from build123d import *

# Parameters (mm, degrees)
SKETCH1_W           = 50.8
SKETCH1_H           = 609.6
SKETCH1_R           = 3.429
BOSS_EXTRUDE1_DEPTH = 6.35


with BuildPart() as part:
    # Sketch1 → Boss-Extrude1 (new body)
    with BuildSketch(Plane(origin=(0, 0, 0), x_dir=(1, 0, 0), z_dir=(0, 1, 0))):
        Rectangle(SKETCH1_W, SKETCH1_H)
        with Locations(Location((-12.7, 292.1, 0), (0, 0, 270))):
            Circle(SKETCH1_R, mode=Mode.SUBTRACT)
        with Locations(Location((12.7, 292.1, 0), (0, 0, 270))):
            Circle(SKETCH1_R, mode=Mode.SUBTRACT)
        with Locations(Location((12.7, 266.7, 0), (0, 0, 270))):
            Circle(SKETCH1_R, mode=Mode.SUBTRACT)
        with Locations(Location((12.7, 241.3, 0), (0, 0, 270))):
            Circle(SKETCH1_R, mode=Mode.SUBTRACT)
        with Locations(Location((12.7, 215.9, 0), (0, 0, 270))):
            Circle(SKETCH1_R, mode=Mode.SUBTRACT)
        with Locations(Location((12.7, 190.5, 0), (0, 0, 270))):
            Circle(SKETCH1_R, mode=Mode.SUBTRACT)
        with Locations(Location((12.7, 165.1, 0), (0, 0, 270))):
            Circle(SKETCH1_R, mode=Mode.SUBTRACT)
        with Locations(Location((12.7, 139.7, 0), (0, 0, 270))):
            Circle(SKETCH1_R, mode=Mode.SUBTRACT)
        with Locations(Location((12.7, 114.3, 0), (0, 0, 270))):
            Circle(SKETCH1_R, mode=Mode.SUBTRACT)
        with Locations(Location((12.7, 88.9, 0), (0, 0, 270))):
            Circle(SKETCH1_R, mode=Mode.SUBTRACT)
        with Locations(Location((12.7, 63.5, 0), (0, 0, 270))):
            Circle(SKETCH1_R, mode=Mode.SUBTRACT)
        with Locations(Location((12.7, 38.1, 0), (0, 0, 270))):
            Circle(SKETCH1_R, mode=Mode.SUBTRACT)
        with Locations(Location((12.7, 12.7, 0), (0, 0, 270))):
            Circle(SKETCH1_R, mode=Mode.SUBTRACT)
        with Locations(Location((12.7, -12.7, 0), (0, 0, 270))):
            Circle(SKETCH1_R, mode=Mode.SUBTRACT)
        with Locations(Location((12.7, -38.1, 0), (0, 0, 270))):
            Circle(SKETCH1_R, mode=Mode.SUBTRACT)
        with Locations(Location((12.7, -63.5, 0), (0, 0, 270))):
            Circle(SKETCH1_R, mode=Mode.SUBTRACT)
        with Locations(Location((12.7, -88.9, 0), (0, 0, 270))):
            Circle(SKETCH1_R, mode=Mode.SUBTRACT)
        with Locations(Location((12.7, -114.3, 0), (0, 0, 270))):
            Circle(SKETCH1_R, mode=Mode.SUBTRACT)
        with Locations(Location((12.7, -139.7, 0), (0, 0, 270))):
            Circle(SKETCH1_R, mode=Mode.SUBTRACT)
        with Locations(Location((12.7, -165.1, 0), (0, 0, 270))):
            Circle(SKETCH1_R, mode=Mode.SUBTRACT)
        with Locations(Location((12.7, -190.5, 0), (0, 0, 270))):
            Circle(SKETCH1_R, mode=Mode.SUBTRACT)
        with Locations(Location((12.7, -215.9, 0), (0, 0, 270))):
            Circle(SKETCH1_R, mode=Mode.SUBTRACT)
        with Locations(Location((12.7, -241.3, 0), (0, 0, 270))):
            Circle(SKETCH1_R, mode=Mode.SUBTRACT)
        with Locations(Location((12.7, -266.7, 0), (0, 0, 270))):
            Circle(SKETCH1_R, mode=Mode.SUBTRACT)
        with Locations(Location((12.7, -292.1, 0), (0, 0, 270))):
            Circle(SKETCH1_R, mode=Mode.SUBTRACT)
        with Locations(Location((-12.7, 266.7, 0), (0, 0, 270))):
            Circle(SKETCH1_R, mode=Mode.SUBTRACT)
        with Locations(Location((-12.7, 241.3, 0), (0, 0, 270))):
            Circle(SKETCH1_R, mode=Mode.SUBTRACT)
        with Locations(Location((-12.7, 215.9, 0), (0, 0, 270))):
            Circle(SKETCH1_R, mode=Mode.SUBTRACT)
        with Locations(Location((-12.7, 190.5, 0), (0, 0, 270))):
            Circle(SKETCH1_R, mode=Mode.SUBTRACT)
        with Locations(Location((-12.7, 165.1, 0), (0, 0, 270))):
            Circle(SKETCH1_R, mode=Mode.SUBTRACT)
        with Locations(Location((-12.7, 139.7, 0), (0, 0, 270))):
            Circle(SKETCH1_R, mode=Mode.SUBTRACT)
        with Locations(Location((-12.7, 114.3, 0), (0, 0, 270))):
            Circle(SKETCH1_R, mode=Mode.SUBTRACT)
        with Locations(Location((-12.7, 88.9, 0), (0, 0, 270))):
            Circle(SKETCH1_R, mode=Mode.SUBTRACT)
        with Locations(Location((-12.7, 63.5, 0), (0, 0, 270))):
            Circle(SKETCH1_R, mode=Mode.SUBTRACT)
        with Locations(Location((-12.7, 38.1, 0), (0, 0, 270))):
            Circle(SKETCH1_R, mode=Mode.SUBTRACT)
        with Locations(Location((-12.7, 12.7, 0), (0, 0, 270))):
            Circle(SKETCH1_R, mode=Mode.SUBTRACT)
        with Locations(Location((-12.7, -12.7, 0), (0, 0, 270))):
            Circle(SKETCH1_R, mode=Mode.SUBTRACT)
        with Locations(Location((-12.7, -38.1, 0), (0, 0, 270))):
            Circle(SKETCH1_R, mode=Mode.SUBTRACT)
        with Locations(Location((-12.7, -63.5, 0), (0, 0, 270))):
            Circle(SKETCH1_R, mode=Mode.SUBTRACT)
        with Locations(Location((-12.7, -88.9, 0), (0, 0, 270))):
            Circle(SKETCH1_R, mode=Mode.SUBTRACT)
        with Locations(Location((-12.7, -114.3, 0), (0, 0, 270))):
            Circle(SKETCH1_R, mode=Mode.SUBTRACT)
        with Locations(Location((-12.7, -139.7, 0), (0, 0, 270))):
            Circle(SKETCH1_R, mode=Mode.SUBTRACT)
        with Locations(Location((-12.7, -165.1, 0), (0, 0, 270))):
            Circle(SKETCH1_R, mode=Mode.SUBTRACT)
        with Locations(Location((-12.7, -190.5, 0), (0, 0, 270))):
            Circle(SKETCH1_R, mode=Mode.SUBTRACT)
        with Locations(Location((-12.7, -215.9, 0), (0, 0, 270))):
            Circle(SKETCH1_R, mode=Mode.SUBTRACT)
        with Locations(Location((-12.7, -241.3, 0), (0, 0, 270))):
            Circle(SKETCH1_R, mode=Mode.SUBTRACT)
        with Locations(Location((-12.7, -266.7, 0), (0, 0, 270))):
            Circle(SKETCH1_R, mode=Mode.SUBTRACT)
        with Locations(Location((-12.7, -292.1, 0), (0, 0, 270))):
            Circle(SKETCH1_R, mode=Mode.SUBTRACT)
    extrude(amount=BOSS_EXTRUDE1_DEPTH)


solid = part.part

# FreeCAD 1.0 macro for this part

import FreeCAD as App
import Part
import Sketcher
from FreeCAD import Vector
Q = App.Units.Quantity

doc = App.newDocument("Part")
params = doc.addObject("Spreadsheet::Sheet", "Params")
for row, (alias, value) in enumerate([
    ("sketch1_diameter", "0.27 in"),
    ("sketch1_width", "2 in"),
    ("sketch1_height", "24 in"),
    ("pad1_length", "0.25 in"),
], start=1):
    params.set(f"A{row}", alias)
    params.set(f"B{row}", "=" + value)
    params.setAlias(f"B{row}", alias)

body = doc.addObject("PartDesign::Body", "Body")

# Sketch on XZ plane
sketch1 = body.newObject("Sketcher::SketchObject", "Sketch")
sketch1.AttachmentSupport = (doc.getObject("XZ_Plane"), [""])
sketch1.MapMode = "FlatFace"
sketch1.addGeometry([
    Part.LineSegment(Vector(-25.4, -304.8, 0), Vector(-25.4, 304.8, 0)),  # 0
    Part.LineSegment(Vector(-25.4, 304.8, 0), Vector(25.4, 304.8, 0)),  # 1
    Part.LineSegment(Vector(25.4, 304.8, 0), Vector(25.4, -304.8, 0)),  # 2
    Part.LineSegment(Vector(25.4, -304.8, 0), Vector(-25.4, -304.8, 0)),  # 3
    Part.Circle(Vector(-12.7, 292.1, 0), Vector(0, 0, 1), 3.429),  # 4
    Part.Circle(Vector(-12.7, 266.7, 0), Vector(0, 0, 1), 3.429),  # 5
    Part.Circle(Vector(-12.7, 241.3, 0), Vector(0, 0, 1), 3.429),  # 6
    Part.Circle(Vector(-12.7, 215.9, 0), Vector(0, 0, 1), 3.429),  # 7
    Part.Circle(Vector(-12.7, 190.5, 0), Vector(0, 0, 1), 3.429),  # 8
    Part.Circle(Vector(-12.7, 165.1, 0), Vector(0, 0, 1), 3.429),  # 9
    Part.Circle(Vector(-12.7, 139.7, 0), Vector(0, 0, 1), 3.429),  # 10
    Part.Circle(Vector(-12.7, 114.3, 0), Vector(0, 0, 1), 3.429),  # 11
    Part.Circle(Vector(-12.7, 88.9, 0), Vector(0, 0, 1), 3.429),  # 12
    Part.Circle(Vector(-12.7, 63.5, 0), Vector(0, 0, 1), 3.429),  # 13
    Part.Circle(Vector(-12.7, 38.1, 0), Vector(0, 0, 1), 3.429),  # 14
    Part.Circle(Vector(-12.7, 12.7, 0), Vector(0, 0, 1), 3.429),  # 15
    Part.Circle(Vector(12.7, 292.1, 0), Vector(0, 0, 1), 3.429),  # 16
    Part.Circle(Vector(12.7, 266.7, 0), Vector(0, 0, 1), 3.429),  # 17
    Part.Circle(Vector(12.7, 241.3, 0), Vector(0, 0, 1), 3.429),  # 18
    Part.Circle(Vector(12.7, 215.9, 0), Vector(0, 0, 1), 3.429),  # 19
    Part.Circle(Vector(12.7, 190.5, 0), Vector(0, 0, 1), 3.429),  # 20
    Part.Circle(Vector(12.7, 165.1, 0), Vector(0, 0, 1), 3.429),  # 21
    Part.Circle(Vector(12.7, 139.7, 0), Vector(0, 0, 1), 3.429),  # 22
    Part.Circle(Vector(12.7, 114.3, 0), Vector(0, 0, 1), 3.429),  # 23
    Part.Circle(Vector(12.7, 88.9, 0), Vector(0, 0, 1), 3.429),  # 24
    Part.Circle(Vector(12.7, 63.5, 0), Vector(0, 0, 1), 3.429),  # 25
    Part.Circle(Vector(12.7, 38.1, 0), Vector(0, 0, 1), 3.429),  # 26
    Part.Circle(Vector(12.7, 12.7, 0), Vector(0, 0, 1), 3.429),  # 27
    Part.Circle(Vector(-12.7, -12.7, 0), Vector(0, 0, 1), 3.429),  # 28
    Part.Circle(Vector(-12.7, -38.1, 0), Vector(0, 0, 1), 3.429),  # 29
    Part.Circle(Vector(-12.7, -63.5, 0), Vector(0, 0, 1), 3.429),  # 30
    Part.Circle(Vector(-12.7, -88.9, 0), Vector(0, 0, 1), 3.429),  # 31
    Part.Circle(Vector(-12.7, -114.3, 0), Vector(0, 0, 1), 3.429),  # 32
    Part.Circle(Vector(-12.7, -139.7, 0), Vector(0, 0, 1), 3.429),  # 33
    Part.Circle(Vector(-12.7, -165.1, 0), Vector(0, 0, 1), 3.429),  # 34
    Part.Circle(Vector(-12.7, -190.5, 0), Vector(0, 0, 1), 3.429),  # 35
    Part.Circle(Vector(-12.7, -215.9, 0), Vector(0, 0, 1), 3.429),  # 36
    Part.Circle(Vector(-12.7, -241.3, 0), Vector(0, 0, 1), 3.429),  # 37
    Part.Circle(Vector(-12.7, -266.7, 0), Vector(0, 0, 1), 3.429),  # 38
    Part.Circle(Vector(-12.7, -292.1, 0), Vector(0, 0, 1), 3.429),  # 39
    Part.Circle(Vector(12.7, -12.7, 0), Vector(0, 0, 1), 3.429),  # 40
    Part.Circle(Vector(12.7, -38.1, 0), Vector(0, 0, 1), 3.429),  # 41
    Part.Circle(Vector(12.7, -63.5, 0), Vector(0, 0, 1), 3.429),  # 42
    Part.Circle(Vector(12.7, -88.9, 0), Vector(0, 0, 1), 3.429),  # 43
    Part.Circle(Vector(12.7, -114.3, 0), Vector(0, 0, 1), 3.429),  # 44
    Part.Circle(Vector(12.7, -139.7, 0), Vector(0, 0, 1), 3.429),  # 45
    Part.Circle(Vector(12.7, -165.1, 0), Vector(0, 0, 1), 3.429),  # 46
    Part.Circle(Vector(12.7, -190.5, 0), Vector(0, 0, 1), 3.429),  # 47
    Part.Circle(Vector(12.7, -215.9, 0), Vector(0, 0, 1), 3.429),  # 48
    Part.Circle(Vector(12.7, -241.3, 0), Vector(0, 0, 1), 3.429),  # 49
    Part.Circle(Vector(12.7, -266.7, 0), Vector(0, 0, 1), 3.429),  # 50
    Part.Circle(Vector(12.7, -292.1, 0), Vector(0, 0, 1), 3.429),  # 51
], False)
sketch1.addConstraint([
    Sketcher.Constraint("Coincident", 0, 2, 1, 1),
    Sketcher.Constraint("Coincident", 1, 2, 2, 1),
    Sketcher.Constraint("Coincident", 2, 2, 3, 1),
    Sketcher.Constraint("Coincident", 3, 2, 0, 1),
    Sketcher.Constraint("Vertical", 0),
    Sketcher.Constraint("Horizontal", 1),
    Sketcher.Constraint("Vertical", 2),
    Sketcher.Constraint("Horizontal", 3),
    Sketcher.Constraint("Equal", 4, 5),
    Sketcher.Constraint("Equal", 5, 6),
    Sketcher.Constraint("Equal", 6, 7),
    Sketcher.Constraint("Equal", 7, 8),
    Sketcher.Constraint("Equal", 8, 9),
    Sketcher.Constraint("Equal", 9, 10),
    Sketcher.Constraint("Equal", 10, 11),
    Sketcher.Constraint("Equal", 11, 12),
    Sketcher.Constraint("Equal", 12, 13),
    Sketcher.Constraint("Equal", 13, 14),
    Sketcher.Constraint("Equal", 14, 15),
    Sketcher.Constraint("Equal", 15, 16),
    Sketcher.Constraint("Equal", 16, 17),
    Sketcher.Constraint("Equal", 17, 18),
    Sketcher.Constraint("Equal", 18, 19),
    Sketcher.Constraint("Equal", 19, 20),
    Sketcher.Constraint("Equal", 20, 21),
    Sketcher.Constraint("Equal", 21, 22),
    Sketcher.Constraint("Equal", 22, 23),
    Sketcher.Constraint("Equal", 23, 24),
    Sketcher.Constraint("Equal", 24, 25),
    Sketcher.Constraint("Equal", 25, 26),
    Sketcher.Constraint("Equal", 26, 27),
    Sketcher.Constraint("Equal", 27, 28),
    Sketcher.Constraint("Equal", 28, 29),
    Sketcher.Constraint("Equal", 29, 30),
    Sketcher.Constraint("Equal", 30, 31),
    Sketcher.Constraint("Equal", 31, 32),
    Sketcher.Constraint("Equal", 32, 33),
    Sketcher.Constraint("Equal", 33, 34),
    Sketcher.Constraint("Equal", 34, 35),
    Sketcher.Constraint("Equal", 35, 36),
    Sketcher.Constraint("Equal", 36, 37),
    Sketcher.Constraint("Equal", 37, 38),
    Sketcher.Constraint("Equal", 38, 39),
    Sketcher.Constraint("Equal", 39, 40),
    Sketcher.Constraint("Equal", 40, 41),
    Sketcher.Constraint("Equal", 41, 42),
    Sketcher.Constraint("Equal", 42, 43),
    Sketcher.Constraint("Equal", 43, 44),
    Sketcher.Constraint("Equal", 44, 45),
    Sketcher.Constraint("Equal", 45, 46),
    Sketcher.Constraint("Equal", 46, 47),
    Sketcher.Constraint("Equal", 47, 48),
    Sketcher.Constraint("Equal", 48, 49),
    Sketcher.Constraint("Equal", 49, 50),
    Sketcher.Constraint("Equal", 50, 51),
    Sketcher.Constraint("Symmetric", 27, 3, 28, 3, -1, 1),
    Sketcher.Constraint("Symmetric", 26, 3, 29, 3, -1, 1),
    Sketcher.Constraint("Symmetric", 25, 3, 30, 3, -1, 1),
    Sketcher.Constraint("Symmetric", 24, 3, 31, 3, -1, 1),
    Sketcher.Constraint("Symmetric", 23, 3, 32, 3, -1, 1),
    Sketcher.Constraint("Symmetric", 22, 3, 33, 3, -1, 1),
    Sketcher.Constraint("Symmetric", 21, 3, 34, 3, -1, 1),
    Sketcher.Constraint("Symmetric", 20, 3, 35, 3, -1, 1),
    Sketcher.Constraint("Symmetric", 19, 3, 36, 3, -1, 1),
    Sketcher.Constraint("Symmetric", 18, 3, 37, 3, -1, 1),
    Sketcher.Constraint("Symmetric", 17, 3, 38, 3, -1, 1),
    Sketcher.Constraint("Symmetric", 16, 3, 39, 3, -1, 1),
    Sketcher.Constraint("Symmetric", 15, 3, 40, 3, -1, 1),
    Sketcher.Constraint("Symmetric", 14, 3, 41, 3, -1, 1),
    Sketcher.Constraint("Symmetric", 13, 3, 42, 3, -1, 1),
    Sketcher.Constraint("Symmetric", 12, 3, 43, 3, -1, 1),
    Sketcher.Constraint("Symmetric", 11, 3, 44, 3, -1, 1),
    Sketcher.Constraint("Symmetric", 10, 3, 45, 3, -1, 1),
    Sketcher.Constraint("Symmetric", 9, 3, 46, 3, -1, 1),
    Sketcher.Constraint("Symmetric", 8, 3, 47, 3, -1, 1),
    Sketcher.Constraint("Symmetric", 7, 3, 48, 3, -1, 1),
    Sketcher.Constraint("Symmetric", 6, 3, 49, 3, -1, 1),
    Sketcher.Constraint("Symmetric", 5, 3, 50, 3, -1, 1),
    Sketcher.Constraint("Symmetric", 4, 3, 51, 3, -1, 1),
    Sketcher.Constraint("Symmetric", 0, 2, 2, 2, -1, 1),
    Sketcher.Constraint("Symmetric", 4, 3, 16, 3, -2),
    Sketcher.Constraint("Symmetric", 5, 3, 17, 3, -2),
    Sketcher.Constraint("Symmetric", 6, 3, 18, 3, -2),
    Sketcher.Constraint("Symmetric", 7, 3, 19, 3, -2),
    Sketcher.Constraint("Symmetric", 8, 3, 20, 3, -2),
    Sketcher.Constraint("Symmetric", 9, 3, 21, 3, -2),
    Sketcher.Constraint("Symmetric", 10, 3, 22, 3, -2),
    Sketcher.Constraint("Symmetric", 11, 3, 23, 3, -2),
    Sketcher.Constraint("Symmetric", 12, 3, 24, 3, -2),
    Sketcher.Constraint("Symmetric", 13, 3, 25, 3, -2),
    Sketcher.Constraint("Symmetric", 14, 3, 26, 3, -2),
    Sketcher.Constraint("Symmetric", 15, 3, 27, 3, -2),
    Sketcher.Constraint("Vertical", 4, 3, 5, 3),
    Sketcher.Constraint("Vertical", 5, 3, 6, 3),
    Sketcher.Constraint("Vertical", 6, 3, 7, 3),
    Sketcher.Constraint("Vertical", 7, 3, 8, 3),
    Sketcher.Constraint("Vertical", 8, 3, 9, 3),
    Sketcher.Constraint("Vertical", 9, 3, 10, 3),
    Sketcher.Constraint("Vertical", 10, 3, 11, 3),
    Sketcher.Constraint("Vertical", 11, 3, 12, 3),
    Sketcher.Constraint("Vertical", 12, 3, 13, 3),
    Sketcher.Constraint("Vertical", 13, 3, 14, 3),
    Sketcher.Constraint("Vertical", 14, 3, 15, 3),
    Sketcher.Constraint("Diameter", 4, Q("0.27 in")),
    Sketcher.Constraint("DistanceX", 1, 1, 1, 2, Q("2 in")),
    Sketcher.Constraint("DistanceY", 0, 1, 0, 2, Q("24 in")),
    Sketcher.Constraint("DistanceY", 5, 3, 4, 3, Q("1 in")),
    Sketcher.Constraint("DistanceY", 6, 3, 5, 3, Q("1 in")),
    Sketcher.Constraint("DistanceY", 7, 3, 6, 3, Q("1 in")),
    Sketcher.Constraint("DistanceY", 8, 3, 7, 3, Q("1 in")),
    Sketcher.Constraint("DistanceY", 9, 3, 8, 3, Q("1 in")),
    Sketcher.Constraint("DistanceY", 10, 3, 9, 3, Q("1 in")),
    Sketcher.Constraint("DistanceY", 11, 3, 10, 3, Q("1 in")),
    Sketcher.Constraint("DistanceY", 12, 3, 11, 3, Q("1 in")),
    Sketcher.Constraint("DistanceY", 13, 3, 12, 3, Q("1 in")),
    Sketcher.Constraint("DistanceY", 14, 3, 13, 3, Q("1 in")),
    Sketcher.Constraint("DistanceY", 15, 3, 14, 3, Q("1 in")),
    Sketcher.Constraint("DistanceX", 4, 3, 16, 3, Q("1 in")),
    Sketcher.Constraint("DistanceY", 28, 3, 15, 3, Q("1 in")),
])
sketch1.setExpression("Constraints[103]", "Params.sketch1_diameter")
sketch1.setExpression("Constraints[104]", "Params.sketch1_width")
sketch1.setExpression("Constraints[105]", "Params.sketch1_height")
pad1 = body.newObject("PartDesign::Pad", "Pad")
pad1.Profile = sketch1
pad1.setExpression("Length", "Params.pad1_length")
pad1.Reversed = True

doc.recompute()
